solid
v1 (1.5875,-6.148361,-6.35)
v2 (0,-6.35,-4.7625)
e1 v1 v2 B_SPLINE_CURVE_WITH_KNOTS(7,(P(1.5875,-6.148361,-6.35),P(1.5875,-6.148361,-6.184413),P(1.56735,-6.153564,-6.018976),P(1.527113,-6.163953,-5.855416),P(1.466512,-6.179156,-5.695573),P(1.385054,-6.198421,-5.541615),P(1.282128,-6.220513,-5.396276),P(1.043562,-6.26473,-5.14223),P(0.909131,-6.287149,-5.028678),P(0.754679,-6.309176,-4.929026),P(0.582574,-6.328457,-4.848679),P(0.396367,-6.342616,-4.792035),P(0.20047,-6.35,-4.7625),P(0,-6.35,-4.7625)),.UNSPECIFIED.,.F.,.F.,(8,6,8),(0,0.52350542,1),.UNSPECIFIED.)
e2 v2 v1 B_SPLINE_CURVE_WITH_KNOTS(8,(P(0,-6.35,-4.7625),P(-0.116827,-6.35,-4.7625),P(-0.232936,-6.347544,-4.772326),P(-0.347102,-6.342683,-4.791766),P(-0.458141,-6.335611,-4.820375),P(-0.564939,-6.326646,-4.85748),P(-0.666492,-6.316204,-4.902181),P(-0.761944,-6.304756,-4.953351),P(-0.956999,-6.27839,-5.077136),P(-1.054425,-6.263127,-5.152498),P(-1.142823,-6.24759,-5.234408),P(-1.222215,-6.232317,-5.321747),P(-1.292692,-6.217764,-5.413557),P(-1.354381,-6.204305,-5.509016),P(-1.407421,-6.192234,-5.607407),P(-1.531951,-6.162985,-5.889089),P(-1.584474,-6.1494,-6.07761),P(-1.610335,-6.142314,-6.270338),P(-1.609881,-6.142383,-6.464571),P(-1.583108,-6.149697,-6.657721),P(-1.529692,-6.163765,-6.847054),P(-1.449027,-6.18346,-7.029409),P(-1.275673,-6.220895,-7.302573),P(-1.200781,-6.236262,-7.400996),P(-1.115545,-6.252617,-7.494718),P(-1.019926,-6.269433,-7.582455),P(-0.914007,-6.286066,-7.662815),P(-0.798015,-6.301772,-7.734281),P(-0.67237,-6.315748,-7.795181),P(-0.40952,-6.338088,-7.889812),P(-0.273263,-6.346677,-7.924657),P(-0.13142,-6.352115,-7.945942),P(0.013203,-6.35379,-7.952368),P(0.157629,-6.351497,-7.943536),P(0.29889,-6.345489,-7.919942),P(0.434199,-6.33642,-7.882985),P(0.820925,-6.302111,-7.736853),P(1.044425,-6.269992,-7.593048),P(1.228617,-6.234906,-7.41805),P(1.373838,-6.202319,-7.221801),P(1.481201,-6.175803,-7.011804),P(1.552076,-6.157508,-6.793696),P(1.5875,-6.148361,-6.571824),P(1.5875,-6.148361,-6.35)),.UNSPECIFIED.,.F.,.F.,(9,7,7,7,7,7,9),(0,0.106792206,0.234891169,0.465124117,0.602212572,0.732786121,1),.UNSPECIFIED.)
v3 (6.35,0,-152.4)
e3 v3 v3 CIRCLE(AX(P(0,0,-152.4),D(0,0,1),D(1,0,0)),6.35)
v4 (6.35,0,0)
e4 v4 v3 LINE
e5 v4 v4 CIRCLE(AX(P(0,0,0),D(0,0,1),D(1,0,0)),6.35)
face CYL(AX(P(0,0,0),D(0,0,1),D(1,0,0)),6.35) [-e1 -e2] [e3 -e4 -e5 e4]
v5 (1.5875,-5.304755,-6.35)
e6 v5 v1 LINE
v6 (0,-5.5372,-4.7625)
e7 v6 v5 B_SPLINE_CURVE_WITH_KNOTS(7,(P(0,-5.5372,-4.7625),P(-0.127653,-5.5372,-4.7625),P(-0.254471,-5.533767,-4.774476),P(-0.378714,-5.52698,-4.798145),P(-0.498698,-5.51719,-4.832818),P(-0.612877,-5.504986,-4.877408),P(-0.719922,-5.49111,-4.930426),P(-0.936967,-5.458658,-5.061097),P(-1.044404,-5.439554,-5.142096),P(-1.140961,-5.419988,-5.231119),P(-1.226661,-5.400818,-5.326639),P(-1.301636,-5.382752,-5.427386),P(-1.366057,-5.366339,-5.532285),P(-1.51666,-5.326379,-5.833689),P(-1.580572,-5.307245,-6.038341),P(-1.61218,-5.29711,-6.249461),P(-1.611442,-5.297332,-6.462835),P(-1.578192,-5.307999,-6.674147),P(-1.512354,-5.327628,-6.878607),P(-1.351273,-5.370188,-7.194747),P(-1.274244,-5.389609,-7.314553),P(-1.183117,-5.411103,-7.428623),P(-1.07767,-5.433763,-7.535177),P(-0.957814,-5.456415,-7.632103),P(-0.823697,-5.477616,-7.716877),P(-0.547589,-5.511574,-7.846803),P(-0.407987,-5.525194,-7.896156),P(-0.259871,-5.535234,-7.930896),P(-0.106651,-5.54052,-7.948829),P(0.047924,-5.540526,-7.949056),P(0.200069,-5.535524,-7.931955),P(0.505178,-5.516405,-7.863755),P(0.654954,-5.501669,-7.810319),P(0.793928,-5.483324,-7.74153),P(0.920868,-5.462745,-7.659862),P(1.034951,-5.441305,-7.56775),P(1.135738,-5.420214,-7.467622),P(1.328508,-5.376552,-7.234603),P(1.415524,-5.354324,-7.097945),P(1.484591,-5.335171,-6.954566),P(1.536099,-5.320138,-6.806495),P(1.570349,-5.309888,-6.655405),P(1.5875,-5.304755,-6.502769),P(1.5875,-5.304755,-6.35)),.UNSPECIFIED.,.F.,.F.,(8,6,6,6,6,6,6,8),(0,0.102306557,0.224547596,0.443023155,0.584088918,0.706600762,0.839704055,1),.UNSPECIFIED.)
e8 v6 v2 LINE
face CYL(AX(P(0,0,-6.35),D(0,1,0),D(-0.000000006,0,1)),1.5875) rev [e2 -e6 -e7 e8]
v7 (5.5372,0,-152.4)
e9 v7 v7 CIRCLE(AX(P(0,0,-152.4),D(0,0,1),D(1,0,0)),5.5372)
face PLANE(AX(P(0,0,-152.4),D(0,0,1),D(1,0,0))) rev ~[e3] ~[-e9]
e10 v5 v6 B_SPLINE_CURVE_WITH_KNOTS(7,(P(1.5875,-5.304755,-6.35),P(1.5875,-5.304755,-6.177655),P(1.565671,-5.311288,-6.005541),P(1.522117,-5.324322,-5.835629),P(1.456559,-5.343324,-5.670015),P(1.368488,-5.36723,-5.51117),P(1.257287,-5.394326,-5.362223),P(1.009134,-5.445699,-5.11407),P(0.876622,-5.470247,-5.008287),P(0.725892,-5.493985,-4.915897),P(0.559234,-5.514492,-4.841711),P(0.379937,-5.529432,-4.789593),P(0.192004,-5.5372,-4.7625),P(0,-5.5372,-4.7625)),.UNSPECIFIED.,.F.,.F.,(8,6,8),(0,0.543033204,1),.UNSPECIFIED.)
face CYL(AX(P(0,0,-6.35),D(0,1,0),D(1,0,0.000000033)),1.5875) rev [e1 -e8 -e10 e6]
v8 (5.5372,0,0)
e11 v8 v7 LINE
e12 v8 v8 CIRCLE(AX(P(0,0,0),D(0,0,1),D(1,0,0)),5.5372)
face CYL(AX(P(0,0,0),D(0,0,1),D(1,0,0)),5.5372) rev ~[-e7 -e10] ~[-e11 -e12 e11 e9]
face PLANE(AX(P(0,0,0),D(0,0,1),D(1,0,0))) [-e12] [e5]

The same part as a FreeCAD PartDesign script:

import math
import FreeCAD as App
import Part
import Sketcher

V = App.Vector
Q = App.Units.Quantity

doc = App.newDocument("Part")
params = doc.addObject("Spreadsheet::Sheet", "Params")
for row, (alias, value) in enumerate([
    ("sketch1_diameter", "0.5 in"),
    ("sketch1_diameter2", "0.436 in"),
    ("pad1_length", "6 in"),
    ("sketch2_radius", "0.0625 in"),
    ("pocket1_length", "1 in"),
], start=1):
    params.set(f"A{row}", alias)
    params.set(f"B{row}", "=" + value)
    params.setAlias(f"B{row}", alias)

body = doc.addObject("PartDesign::Body", "Body")

sketch1 = body.newObject("Sketcher::SketchObject", "Sketch")
sketch1.AttachmentSupport = (doc.getObject("XY_Plane"), [""])
sketch1.MapMode = "FlatFace"
sketch1.addGeometry([
    Part.Circle(V(0, 0, 0), V(0, 0, 1), 6),
    Part.Circle(V(0, 0, 0), V(0, 0, 1), 6),
], False)
sketch1.addConstraint([
    Sketcher.Constraint("Coincident", 0, 3, -1, 1),
    Sketcher.Constraint("Coincident", 1, 3, -1, 1),
    Sketcher.Constraint("Diameter", 0, Q("0.5 in")),
    Sketcher.Constraint("Diameter", 1, Q("0.436 in")),
])
sketch1.setExpression("Constraints[2]", "Params.sketch1_diameter")
sketch1.setExpression("Constraints[3]", "Params.sketch1_diameter2")
pad1 = body.newObject("PartDesign::Pad", "Pad")
pad1.Profile = sketch1
pad1.setExpression("Length", "Params.pad1_length")
pad1.Reversed = True

sketch2 = body.newObject("Sketcher::SketchObject", "Sketch001")
sketch2.AttachmentSupport = (doc.getObject("XZ_Plane"), [""])
sketch2.MapMode = "FlatFace"
sketch2.addGeometry([
    Part.ArcOfCircle(Part.Circle(V(0, -6.3, 0), V(0, 0, 1), 1.6), math.radians(90), math.radians(360)),
    Part.ArcOfCircle(Part.Circle(V(0, -6.4, 0), V(0, 0, 1), 1.6), math.radians(0), math.radians(90)),
], False)
sketch2.addConstraint([
    Sketcher.Constraint("Tangent", 0, 1, 1, 2),
    Sketcher.Constraint("Coincident", 1, 1, 0, 2),
    Sketcher.Constraint("PointOnObject", 0, 3, -2),
    Sketcher.Constraint("PointOnObject", 0, 1, -2),
    Sketcher.Constraint("Horizontal", 0, 3, 1, 1),
    Sketcher.Constraint("Radius", 0, Q("0.0625 in")),
    Sketcher.Constraint("DistanceY", 0, 3, -1, 1, Q("0.25 in")),
])
sketch2.setExpression("Constraints[5]", "Params.sketch2_radius")
pocket1 = body.newObject("PartDesign::Pocket", "Pocket")
pocket1.Profile = sketch2
pocket1.setExpression("Length", "Params.pocket1_length")
pocket1.Reversed = True

doc.recompute()
